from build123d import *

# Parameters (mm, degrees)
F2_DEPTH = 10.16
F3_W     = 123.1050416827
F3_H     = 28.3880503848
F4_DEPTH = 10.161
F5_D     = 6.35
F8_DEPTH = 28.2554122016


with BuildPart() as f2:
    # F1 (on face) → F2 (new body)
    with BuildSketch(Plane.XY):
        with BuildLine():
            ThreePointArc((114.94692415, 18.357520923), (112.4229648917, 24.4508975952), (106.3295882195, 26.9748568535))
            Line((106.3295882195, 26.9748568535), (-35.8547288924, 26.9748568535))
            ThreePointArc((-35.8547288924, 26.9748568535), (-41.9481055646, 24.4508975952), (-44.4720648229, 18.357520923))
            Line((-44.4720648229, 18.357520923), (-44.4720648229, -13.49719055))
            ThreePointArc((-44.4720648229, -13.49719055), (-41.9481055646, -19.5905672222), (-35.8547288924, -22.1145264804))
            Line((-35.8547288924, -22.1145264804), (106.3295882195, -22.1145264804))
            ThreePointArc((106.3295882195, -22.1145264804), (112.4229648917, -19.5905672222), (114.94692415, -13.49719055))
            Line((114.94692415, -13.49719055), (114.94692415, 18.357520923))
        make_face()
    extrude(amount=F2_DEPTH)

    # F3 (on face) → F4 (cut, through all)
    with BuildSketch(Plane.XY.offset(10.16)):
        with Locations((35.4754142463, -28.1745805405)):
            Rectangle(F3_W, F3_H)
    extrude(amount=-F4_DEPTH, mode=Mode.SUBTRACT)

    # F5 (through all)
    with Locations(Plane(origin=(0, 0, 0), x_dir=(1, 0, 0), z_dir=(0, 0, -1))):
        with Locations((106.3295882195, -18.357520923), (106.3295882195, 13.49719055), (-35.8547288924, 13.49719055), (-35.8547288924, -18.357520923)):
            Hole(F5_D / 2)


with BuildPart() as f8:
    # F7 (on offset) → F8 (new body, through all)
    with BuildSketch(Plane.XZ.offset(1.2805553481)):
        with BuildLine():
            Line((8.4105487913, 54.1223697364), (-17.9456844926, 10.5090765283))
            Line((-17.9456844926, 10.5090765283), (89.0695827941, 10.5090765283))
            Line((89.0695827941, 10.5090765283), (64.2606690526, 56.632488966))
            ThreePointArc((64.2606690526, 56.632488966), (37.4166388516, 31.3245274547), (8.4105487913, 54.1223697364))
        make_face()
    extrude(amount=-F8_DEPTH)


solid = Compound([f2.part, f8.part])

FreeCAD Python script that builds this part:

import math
import FreeCAD as App
import Part
import Sketcher
Q = App.Units.Quantity

doc = App.newDocument("Part")
body = doc.addObject("PartDesign::Body", "Body")

sketch1 = body.newObject("Sketcher::SketchObject", "Sketch")
sketch1.AttachmentSupport = (doc.getObject("XY_Plane"), [""])
sketch1.MapMode = "FlatFace"
sketch1.addGeometry(Part.ArcOfCircle(Part.Circle(App.Vector(106, 18, 0), App.Vector(0, 0, 1), 9), math.radians(0), math.radians(90)), False)
sketch1.addGeometry(Part.LineSegment(App.Vector(106, 27, 0), App.Vector(-36, 27, 0)), False)
sketch1.addGeometry(Part.ArcOfCircle(Part.Circle(App.Vector(-36, 18, 0), App.Vector(0, 0, 1), 9), math.radians(90), math.radians(180)), False)
sketch1.addGeometry(Part.LineSegment(App.Vector(-44, 18, 0), App.Vector(-44, -13, 0)), False)
sketch1.addGeometry(Part.ArcOfCircle(Part.Circle(App.Vector(-36, -13, 0), App.Vector(0, 0, 1), 9), math.radians(180), math.radians(270)), False)
sketch1.addGeometry(Part.LineSegment(App.Vector(-36, -22, 0), App.Vector(106, -22, 0)), False)
sketch1.addGeometry(Part.ArcOfCircle(Part.Circle(App.Vector(106, -13, 0), App.Vector(0, 0, 1), 9), math.radians(-90), math.radians(0)), False)
sketch1.addGeometry(Part.LineSegment(App.Vector(115, -13, 0), App.Vector(115, 18, 0)), False)
sketch1.addConstraint(Sketcher.Constraint("Tangent", 0, 2, 1, 1))
sketch1.addConstraint(Sketcher.Constraint("Tangent", 1, 2, 2, 1))
sketch1.addConstraint(Sketcher.Constraint("Tangent", 2, 2, 3, 1))
sketch1.addConstraint(Sketcher.Constraint("Tangent", 3, 2, 4, 1))
sketch1.addConstraint(Sketcher.Constraint("Tangent", 4, 2, 5, 1))
sketch1.addConstraint(Sketcher.Constraint("Tangent", 5, 2, 6, 1))
sketch1.addConstraint(Sketcher.Constraint("Tangent", 6, 2, 7, 1))
sketch1.addConstraint(Sketcher.Constraint("Tangent", 7, 2, 0, 1))
sketch1.addConstraint(Sketcher.Constraint("Horizontal", 1))
sketch1.addConstraint(Sketcher.Constraint("Vertical", 3))
sketch1.addConstraint(Sketcher.Constraint("Horizontal", 5))
sketch1.addConstraint(Sketcher.Constraint("Vertical", 7))
sketch1.addConstraint(Sketcher.Constraint("Equal", 0, 2))
sketch1.addConstraint(Sketcher.Constraint("Equal", 2, 4))
sketch1.addConstraint(Sketcher.Constraint("Equal", 4, 6))
sketch1.addConstraint(Sketcher.Constraint("Radius", 0, 8.617336))
sketch1.addConstraint(Sketcher.Constraint("DistanceY", 3, 2, 3, 1, 31.854711))
sketch1.addConstraint(Sketcher.Constraint("DistanceX", 1, 2, 1, 1, 142.184317))
sketch1.addConstraint(Sketcher.Constraint("DistanceX", -1, 1, 0, 3, 106.329588))
sketch1.addConstraint(Sketcher.Constraint("DistanceY", -1, 1, 0, 3, 18.357521))
pad1 = body.newObject("PartDesign::Pad", "Pad")
pad1.Profile = sketch1
pad1.Length = Q("0.4 in")

sketch2 = body.newObject("Sketcher::SketchObject", "Sketch001")
sketch2.AttachmentSupport = (doc.getObject("XY_Plane"), [""])
sketch2.MapMode = "FlatFace"
sketch2.AttachmentOffset = App.Placement(App.Vector(0, 0, 0.4 * 25.4), App.Rotation())
sketch2.addGeometry(Part.LineSegment(App.Vector(-26, -14, 0), App.Vector(-26, -42, 0)), False)
sketch2.addGeometry(Part.LineSegment(App.Vector(-26, -42, 0), App.Vector(97, -42, 0)), False)
sketch2.addGeometry(Part.LineSegment(App.Vector(97, -42, 0), App.Vector(97, -14, 0)), False)
sketch2.addGeometry(Part.LineSegment(App.Vector(97, -14, 0), App.Vector(-26, -14, 0)), False)
sketch2.addConstraint(Sketcher.Constraint("Coincident", 0, 2, 1, 1))
sketch2.addConstraint(Sketcher.Constraint("Coincident", 1, 2, 2, 1))
sketch2.addConstraint(Sketcher.Constraint("Coincident", 2, 2, 3, 1))
sketch2.addConstraint(Sketcher.Constraint("Coincident", 3, 2, 0, 1))
sketch2.addConstraint(Sketcher.Constraint("Vertical", 0))
sketch2.addConstraint(Sketcher.Constraint("Horizontal", 1))
sketch2.addConstraint(Sketcher.Constraint("Vertical", 2))
sketch2.addConstraint(Sketcher.Constraint("Horizontal", 3))
sketch2.addConstraint(Sketcher.Constraint("DistanceX", 1, 1, 1, 2, 123.105042))
sketch2.addConstraint(Sketcher.Constraint("DistanceY", 0, 2, 0, 1, 28.38805))
sketch2.addConstraint(Sketcher.Constraint("DistanceX", 0, 2, -1, 1, 26.077107))
sketch2.addConstraint(Sketcher.Constraint("DistanceY", 0, 2, -1, 1, 42.368606))
pocket1 = body.newObject("PartDesign::Pocket", "Pocket")
pocket1.Profile = sketch2
pocket1.Type = "ThroughAll"

sketch3 = body.newObject("Sketcher::SketchObject", "Sketch002")
sketch3.AttachmentSupport = (doc.getObject("XY_Plane"), [""])
sketch3.MapMode = "FlatFace"
sketch3.addGeometry(Part.Circle(App.Vector(106.3, 18.4, 0), App.Vector(0, 0, 1), 3.2), False)
sketch3.addGeometry(Part.Circle(App.Vector(106.3, -13.5, 0), App.Vector(0, 0, 1), 3.2), False)
sketch3.addGeometry(Part.Circle(App.Vector(-35.9, -13.5, 0), App.Vector(0, 0, 1), 3.2), False)
sketch3.addGeometry(Part.Circle(App.Vector(-35.9, 18.4, 0), App.Vector(0, 0, 1), 3.2), False)
sketch3.addConstraint(Sketcher.Constraint("Equal", 0, 1))
sketch3.addConstraint(Sketcher.Constraint("Equal", 1, 2))
sketch3.addConstraint(Sketcher.Constraint("Equal", 2, 3))
sketch3.addConstraint(Sketcher.Constraint("Horizontal", 1, 3, 2, 3))
sketch3.addConstraint(Sketcher.Constraint("Horizontal", 0, 3, 3, 3))
sketch3.addConstraint(Sketcher.Constraint("Vertical", 0, 3, 1, 3))
sketch3.addConstraint(Sketcher.Constraint("Vertical", 2, 3, 3, 3))
sketch3.addConstraint(Sketcher.Constraint("Diameter", 0, Q("0.25 in")))
sketch3.addConstraint(Sketcher.Constraint("DistanceX", -1, 1, 0, 3, 106.329588))
sketch3.addConstraint(Sketcher.Constraint("DistanceY", -1, 1, 0, 3, 18.357521))
sketch3.addConstraint(Sketcher.Constraint("DistanceY", 1, 3, -1, 1, 13.497191))
sketch3.addConstraint(Sketcher.Constraint("DistanceX", 2, 3, -1, 1, 35.854729))
doc.recompute()
hole = body.newObject("PartDesign::Hole", "Hole")
hole.Profile = sketch3
hole.ThreadType = "None"
hole.Diameter = Q("0.25 in")
hole.DepthType = "ThroughAll"
hole.Reversed = True
body2 = doc.addObject("PartDesign::Body", "Body001")

sketch4 = body2.newObject("Sketcher::SketchObject", "Sketch003")
sketch4.AttachmentSupport = (doc.getObject("XZ_Plane001"), [""])
sketch4.MapMode = "FlatFace"
sketch4.AttachmentOffset = App.Placement(App.Vector(0, 0, 1.280555), App.Rotation())
sketch4.addGeometry(Part.LineSegment(App.Vector(8, 54, 0), App.Vector(-18, 11, 0)), False)
sketch4.addGeometry(Part.LineSegment(App.Vector(-18, 11, 0), App.Vector(89, 11, 0)), False)
sketch4.addGeometry(Part.LineSegment(App.Vector(89, 11, 0), App.Vector(64, 57, 0)), False)
sketch4.addGeometry(Part.ArcOfCircle(Part.Circle(App.Vector(36, 60, 0), App.Vector(0, 0, 1), 28), math.radians(-169), math.radians(-6)), False)
sketch4.addConstraint(Sketcher.Constraint("Coincident", 0, 2, 1, 1))
sketch4.addConstraint(Sketcher.Constraint("Coincident", 1, 2, 2, 1))
sketch4.addConstraint(Sketcher.Constraint("Coincident", 2, 2, 3, 2))
sketch4.addConstraint(Sketcher.Constraint("Coincident", 3, 1, 0, 1))
sketch4.addConstraint(Sketcher.Constraint("Horizontal", 1))
sketch4.addConstraint(Sketcher.Constraint("Radius", 3, 28.265244))
sketch4.addConstraint(Sketcher.Constraint("Distance", 2, 52.372239))
sketch4.addConstraint(Sketcher.Constraint("DistanceX", 1, 1, 1, 2, 107.015267))
sketch4.addConstraint(Sketcher.Constraint("DistanceX", -1, 1, 3, 3, 36.147571))
sketch4.addConstraint(Sketcher.Constraint("DistanceX", -1, 1, 2, 2, 64.260669))
sketch4.addConstraint(Sketcher.Constraint("DistanceY", -1, 1, 2, 2, 56.632489))
sketch4.addConstraint(Sketcher.Constraint("DistanceX", -1, 1, 3, 1, 8.410549))
sketch4.addConstraint(Sketcher.Constraint("DistanceY", 0, 2, 3, 3, 49.052191))
pad2 = body2.newObject("PartDesign::Pad", "Pad001")
pad2.Profile = sketch4
pad2.Length = 28.255412
pad2.Reversed = True

doc.recompute()
